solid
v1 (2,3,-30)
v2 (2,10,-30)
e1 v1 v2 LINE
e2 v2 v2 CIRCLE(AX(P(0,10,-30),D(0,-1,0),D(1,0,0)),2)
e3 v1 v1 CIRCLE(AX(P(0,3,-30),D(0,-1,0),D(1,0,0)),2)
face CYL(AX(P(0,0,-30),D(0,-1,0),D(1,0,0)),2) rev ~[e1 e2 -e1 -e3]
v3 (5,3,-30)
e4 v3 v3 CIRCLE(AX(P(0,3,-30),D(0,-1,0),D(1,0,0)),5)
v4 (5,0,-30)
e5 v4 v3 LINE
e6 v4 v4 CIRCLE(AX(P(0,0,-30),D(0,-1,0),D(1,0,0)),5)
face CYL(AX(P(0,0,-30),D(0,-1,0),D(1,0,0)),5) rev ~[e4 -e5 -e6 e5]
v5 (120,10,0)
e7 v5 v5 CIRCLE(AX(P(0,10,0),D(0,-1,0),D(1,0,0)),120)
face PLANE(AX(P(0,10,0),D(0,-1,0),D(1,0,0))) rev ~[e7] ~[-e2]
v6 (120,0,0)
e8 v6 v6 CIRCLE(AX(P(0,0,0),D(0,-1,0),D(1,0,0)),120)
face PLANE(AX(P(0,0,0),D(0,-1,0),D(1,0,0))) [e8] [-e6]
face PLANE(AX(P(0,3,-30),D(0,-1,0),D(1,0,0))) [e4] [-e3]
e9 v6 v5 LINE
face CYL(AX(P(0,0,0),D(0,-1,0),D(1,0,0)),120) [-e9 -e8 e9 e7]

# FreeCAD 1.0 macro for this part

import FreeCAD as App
import Part
import Sketcher

V = App.Vector

doc = App.newDocument("Part")
params = doc.addObject("Spreadsheet::Sheet", "Params")
for row, (alias, value) in enumerate([
    ("sketch1_diameter", "240 mm"),
    ("sketch1_diameter2", "4 mm"),
    ("pad1_length", "10 mm"),
    ("sketch2_diameter", "10 mm"),
    ("pocket1_length", "3 mm"),
], start=1):
    params.set(f"A{row}", alias)
    params.set(f"B{row}", "=" + value)
    params.setAlias(f"B{row}", alias)

body = doc.addObject("PartDesign::Body", "Body")

sketch1 = body.newObject("Sketcher::SketchObject", "Sketch")
sketch1.AttachmentSupport = (doc.getObject("XZ_Plane"), [""])
sketch1.MapMode = "FlatFace"
sketch1.addGeometry([
    Part.Circle(V(0, 0, 0), V(0, 0, 1), 120),
    Part.Circle(V(0, -30, 0), V(0, 0, 1), 2),
], False)
sketch1.addConstraint([
    Sketcher.Constraint("Coincident", 0, 3, -1, 1),
    Sketcher.Constraint("PointOnObject", 1, 3, -2),
    Sketcher.Constraint("Diameter", 0, 240.0),
    Sketcher.Constraint("Diameter", 1, 4.0),
    Sketcher.Constraint("DistanceY", 1, 3, -1, 1, 30.0),
])
sketch1.setExpression("Constraints[2]", "Params.sketch1_diameter")
sketch1.setExpression("Constraints[3]", "Params.sketch1_diameter2")
pad1 = body.newObject("PartDesign::Pad", "Pad")
pad1.Profile = sketch1
pad1.setExpression("Length", "Params.pad1_length")
pad1.Reversed = True

sketch2 = body.newObject("Sketcher::SketchObject", "Sketch001")
sketch2.AttachmentSupport = (doc.getObject("XZ_Plane"), [""])
sketch2.MapMode = "FlatFace"
sketch2.addGeometry(Part.Circle(V(0, -30, 0), V(0, 0, 1), 5), False)
sketch2.addConstraint([
    Sketcher.Constraint("PointOnObject", 0, 3, -2),
    Sketcher.Constraint("Diameter", 0, 10.0),
    Sketcher.Constraint("DistanceY", 0, 3, -1, 1, 30.0),
])
sketch2.setExpression("Constraints[1]", "Params.sketch2_diameter")
pocket1 = body.newObject("PartDesign::Pocket", "Pocket")
pocket1.Profile = sketch2
pocket1.setExpression("Length", "Params.pocket1_length")

doc.recompute()
